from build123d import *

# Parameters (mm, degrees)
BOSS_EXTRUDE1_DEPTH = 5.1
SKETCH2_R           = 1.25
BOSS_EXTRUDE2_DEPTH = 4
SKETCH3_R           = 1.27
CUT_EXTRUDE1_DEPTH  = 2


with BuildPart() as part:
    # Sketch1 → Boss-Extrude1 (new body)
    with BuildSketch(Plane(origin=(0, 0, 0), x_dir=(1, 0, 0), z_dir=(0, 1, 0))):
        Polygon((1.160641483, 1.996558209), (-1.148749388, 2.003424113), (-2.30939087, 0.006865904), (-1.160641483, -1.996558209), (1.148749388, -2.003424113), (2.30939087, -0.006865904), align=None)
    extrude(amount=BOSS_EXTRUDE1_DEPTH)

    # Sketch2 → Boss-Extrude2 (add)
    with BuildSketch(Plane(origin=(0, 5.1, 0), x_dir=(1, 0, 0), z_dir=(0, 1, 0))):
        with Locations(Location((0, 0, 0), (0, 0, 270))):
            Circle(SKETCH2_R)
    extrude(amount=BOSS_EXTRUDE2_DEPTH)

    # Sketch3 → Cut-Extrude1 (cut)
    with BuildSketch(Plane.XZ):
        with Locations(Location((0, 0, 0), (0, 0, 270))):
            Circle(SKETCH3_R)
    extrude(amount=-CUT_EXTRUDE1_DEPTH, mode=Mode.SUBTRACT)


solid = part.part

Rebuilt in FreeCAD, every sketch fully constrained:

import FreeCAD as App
import Part
import Sketcher
from FreeCAD import Vector
Q = App.Units.Quantity

doc = App.newDocument("Part")
body = doc.addObject("PartDesign::Body", "Body")

# Sketch on XZ plane
sketch1 = body.newObject("Sketcher::SketchObject", "Sketch")
sketch1.AttachmentSupport = (doc.getObject("XZ_Plane"), [""])
sketch1.MapMode = "FlatFace"
sketch1.addGeometry(Part.LineSegment(Vector(1.2, -2, 0), Vector(-1.1, -2, 0)), False)
sketch1.addGeometry(Part.LineSegment(Vector(-1.1, -2, 0), Vector(-2.3, 0, 0)), False)
sketch1.addGeometry(Part.LineSegment(Vector(-2.3, 0, 0), Vector(-1.2, 2, 0)), False)
sketch1.addGeometry(Part.LineSegment(Vector(-1.2, 2, 0), Vector(1.1, 2, 0)), False)
sketch1.addGeometry(Part.LineSegment(Vector(1.1, 2, 0), Vector(2.3, 0, 0)), False)
sketch1.addGeometry(Part.LineSegment(Vector(2.3, 0, 0), Vector(1.2, -2, 0)), False)
sketch1.addConstraint(Sketcher.Constraint("Coincident", 0, 2, 1, 1))
sketch1.addConstraint(Sketcher.Constraint("Coincident", 1, 2, 2, 1))
sketch1.addConstraint(Sketcher.Constraint("Coincident", 2, 2, 3, 1))
sketch1.addConstraint(Sketcher.Constraint("Coincident", 3, 2, 4, 1))
sketch1.addConstraint(Sketcher.Constraint("Coincident", 4, 2, 5, 1))
sketch1.addConstraint(Sketcher.Constraint("Coincident", 5, 2, 0, 1))
sketch1.addConstraint(Sketcher.Constraint("Symmetric", 0, 2, 3, 2, -1, 1))
sketch1.addConstraint(Sketcher.Constraint("Symmetric", 1, 2, 4, 2, -1, 1))
sketch1.addConstraint(Sketcher.Constraint("Symmetric", 2, 2, 5, 2, -1, 1))
sketch1.addConstraint(Sketcher.Constraint("Equal", 0, 1))
sketch1.addConstraint(Sketcher.Constraint("Equal", 1, 2))
sketch1.addConstraint(Sketcher.Constraint("Distance", 0, Q("2.309401 mm")))
sketch1.addConstraint(Sketcher.Constraint("DistanceX", 0, 2, 3, 2, Q("2.297499 mm")))
sketch1.addConstraint(Sketcher.Constraint("DistanceX", 1, 2, -1, 1, Q("2.309391 mm")))
sketch1.addConstraint(Sketcher.Constraint("DistanceY", -1, 1, 2, 2, Q("1.996558 mm")))
pad1 = body.newObject("PartDesign::Pad", "Pad")
pad1.Profile = sketch1
pad1.Length = 5.1
pad1.Reversed = True

# Sketch on XZ plane
sketch2 = body.newObject("Sketcher::SketchObject", "Sketch001")
sketch2.AttachmentSupport = (doc.getObject("XZ_Plane"), [""])
sketch2.MapMode = "FlatFace"
sketch2.AttachmentOffset = App.Placement(Vector(0, 0, -5.1), App.Rotation())
sketch2.addGeometry(Part.Circle(Vector(0, 0, 0), Vector(0, 0, 1), 1.2), False)
sketch2.addConstraint(Sketcher.Constraint("Coincident", 0, 3, -1, 1))
sketch2.addConstraint(Sketcher.Constraint("Diameter", 0, Q("2.5 mm")))
pad2 = body.newObject("PartDesign::Pad", "Pad001")
pad2.Profile = sketch2
pad2.Length = 4
pad2.Reversed = True

# Sketch on XZ plane
sketch3 = body.newObject("Sketcher::SketchObject", "Sketch002")
sketch3.AttachmentSupport = (doc.getObject("XZ_Plane"), [""])
sketch3.MapMode = "FlatFace"
sketch3.addGeometry(Part.Circle(Vector(0, 0, 0), Vector(0, 0, 1), 1.3), False)
sketch3.addConstraint(Sketcher.Constraint("Coincident", 0, 3, -1, 1))
sketch3.addConstraint(Sketcher.Constraint("Diameter", 0, Q("2.54 mm")))
pocket1 = body.newObject("PartDesign::Pocket", "Pocket")
pocket1.Profile = sketch3
pocket1.Length = 2

doc.recompute()
